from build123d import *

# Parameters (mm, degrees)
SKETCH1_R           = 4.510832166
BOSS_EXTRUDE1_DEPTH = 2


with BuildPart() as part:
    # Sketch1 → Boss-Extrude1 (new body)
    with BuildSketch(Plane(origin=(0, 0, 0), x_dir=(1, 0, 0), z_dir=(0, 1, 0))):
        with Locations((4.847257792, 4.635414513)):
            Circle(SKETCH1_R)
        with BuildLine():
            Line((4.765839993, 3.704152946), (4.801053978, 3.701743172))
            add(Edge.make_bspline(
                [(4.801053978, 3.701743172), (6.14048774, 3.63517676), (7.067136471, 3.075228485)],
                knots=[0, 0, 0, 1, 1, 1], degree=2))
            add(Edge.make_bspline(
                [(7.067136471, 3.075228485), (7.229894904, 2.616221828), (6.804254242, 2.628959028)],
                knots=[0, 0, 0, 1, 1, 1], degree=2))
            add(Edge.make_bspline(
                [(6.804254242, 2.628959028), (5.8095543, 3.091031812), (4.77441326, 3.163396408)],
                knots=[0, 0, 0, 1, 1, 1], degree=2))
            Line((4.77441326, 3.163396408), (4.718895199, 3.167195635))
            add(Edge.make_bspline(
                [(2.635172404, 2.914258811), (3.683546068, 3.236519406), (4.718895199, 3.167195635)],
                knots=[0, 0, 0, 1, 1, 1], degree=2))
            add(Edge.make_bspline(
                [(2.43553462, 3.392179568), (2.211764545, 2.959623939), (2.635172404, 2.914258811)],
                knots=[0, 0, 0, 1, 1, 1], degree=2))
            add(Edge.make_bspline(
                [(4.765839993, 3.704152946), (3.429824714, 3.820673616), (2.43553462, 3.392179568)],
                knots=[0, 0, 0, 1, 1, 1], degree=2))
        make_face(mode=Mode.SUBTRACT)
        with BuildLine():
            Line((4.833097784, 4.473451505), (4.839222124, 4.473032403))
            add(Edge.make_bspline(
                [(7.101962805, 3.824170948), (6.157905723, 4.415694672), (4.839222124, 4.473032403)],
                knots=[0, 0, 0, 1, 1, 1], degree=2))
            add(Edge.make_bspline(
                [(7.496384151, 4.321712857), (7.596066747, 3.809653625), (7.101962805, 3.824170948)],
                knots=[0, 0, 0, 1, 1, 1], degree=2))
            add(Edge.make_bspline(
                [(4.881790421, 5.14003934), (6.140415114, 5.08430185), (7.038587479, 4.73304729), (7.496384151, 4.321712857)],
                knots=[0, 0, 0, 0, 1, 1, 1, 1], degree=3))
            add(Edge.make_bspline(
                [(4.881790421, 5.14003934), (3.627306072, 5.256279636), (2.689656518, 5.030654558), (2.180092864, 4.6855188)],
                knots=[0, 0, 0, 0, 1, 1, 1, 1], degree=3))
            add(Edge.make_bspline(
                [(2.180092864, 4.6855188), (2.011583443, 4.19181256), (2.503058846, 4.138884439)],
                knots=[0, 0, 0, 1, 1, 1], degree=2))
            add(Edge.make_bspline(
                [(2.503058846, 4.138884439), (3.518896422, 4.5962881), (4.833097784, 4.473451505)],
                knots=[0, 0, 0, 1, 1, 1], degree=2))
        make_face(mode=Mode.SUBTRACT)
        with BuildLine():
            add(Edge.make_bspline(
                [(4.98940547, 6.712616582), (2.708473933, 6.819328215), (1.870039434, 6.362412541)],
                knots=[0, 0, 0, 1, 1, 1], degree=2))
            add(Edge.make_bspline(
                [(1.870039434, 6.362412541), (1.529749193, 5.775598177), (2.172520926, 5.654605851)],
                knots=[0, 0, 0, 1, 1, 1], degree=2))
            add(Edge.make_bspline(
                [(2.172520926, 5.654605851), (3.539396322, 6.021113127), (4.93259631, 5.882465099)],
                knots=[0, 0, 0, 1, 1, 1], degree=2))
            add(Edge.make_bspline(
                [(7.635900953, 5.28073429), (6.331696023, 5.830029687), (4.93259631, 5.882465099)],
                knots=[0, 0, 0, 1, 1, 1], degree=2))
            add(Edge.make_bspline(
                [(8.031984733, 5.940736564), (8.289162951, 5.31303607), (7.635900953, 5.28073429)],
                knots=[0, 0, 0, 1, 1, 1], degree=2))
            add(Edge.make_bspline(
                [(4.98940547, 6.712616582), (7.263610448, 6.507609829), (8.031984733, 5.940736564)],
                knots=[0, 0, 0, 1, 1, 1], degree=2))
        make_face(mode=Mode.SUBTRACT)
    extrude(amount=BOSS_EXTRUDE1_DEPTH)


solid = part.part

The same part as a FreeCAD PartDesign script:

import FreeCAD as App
import Part
import Sketcher

V = App.Vector
Q = App.Units.Quantity

doc = App.newDocument("Part")
body = doc.addObject("PartDesign::Body", "Body")

sketch1 = body.newObject("Sketcher::SketchObject", "Sketch")
sketch1.AttachmentSupport = (doc.getObject("XZ_Plane"), [""])
sketch1.MapMode = "FlatFace"
sketch1.addGeometry([
    Part.Circle(V(4.847258, -4.635415, 0), V(0, 0, 1), 4.510832),
    Part.BSplineCurve([V(4.76584, -3.704153, 0), V(3.429825, -3.820674, 0), V(2.435535, -3.39218, 0)], [3, 3], [0, 1], False, 2, [1, 1, 1], False),
    Part.LineSegment(V(4.76584, -3.704153, 0), V(4.801054, -3.701743, 0)),
    Part.BSplineCurve([V(4.801054, -3.701743, 0), V(6.140488, -3.635177, 0), V(7.067136, -3.075228, 0)], [3, 3], [0, 1], False, 2, [1, 1, 1], False),
    Part.BSplineCurve([V(7.067136, -3.075228, 0), V(7.229895, -2.616222, 0), V(6.804254, -2.628959, 0)], [3, 3], [0, 1], False, 2, [1, 1, 1], False),
    Part.BSplineCurve([V(6.804254, -2.628959, 0), V(5.809554, -3.091032, 0), V(4.774413, -3.163396, 0)], [3, 3], [0, 1], False, 2, [1, 1, 1], False),
    Part.LineSegment(V(4.774413, -3.163396, 0), V(4.718895, -3.167196, 0)),
    Part.BSplineCurve([V(2.635172, -2.914259, 0), V(3.683546, -3.236519, 0), V(4.718895, -3.167196, 0)], [3, 3], [0, 1], False, 2, [1, 1, 1], False),
    Part.BSplineCurve([V(2.435535, -3.39218, 0), V(2.211765, -2.959624, 0), V(2.635172, -2.914259, 0)], [3, 3], [0, 1], False, 2, [1, 1, 1], False),
    Part.LineSegment(V(4.839222, -4.473032, 0), V(4.833098, -4.473452, 0)),
    Part.BSplineCurve([V(2.503059, -4.138884, 0), V(3.518896, -4.596288, 0), V(4.833098, -4.473452, 0)], [3, 3], [0, 1], False, 2, [1, 1, 1], False),
    Part.BSplineCurve([V(2.180093, -4.685519, 0), V(2.011583, -4.191813, 0), V(2.503059, -4.138884, 0)], [3, 3], [0, 1], False, 2, [1, 1, 1], False),
    Part.BSplineCurve([V(4.88179, -5.140039, 0), V(3.627306, -5.25628, 0), V(2.689657, -5.030655, 0), V(2.180093, -4.685519, 0)], [4, 4], [0, 1], False, 3, [1, 1, 1, 1], False),
    Part.BSplineCurve([V(4.88179, -5.140039, 0), V(6.140415, -5.084302, 0), V(7.038587, -4.733047, 0), V(7.496384, -4.321713, 0)], [4, 4], [0, 1], False, 3, [1, 1, 1, 1], False),
    Part.BSplineCurve([V(7.496384, -4.321713, 0), V(7.596067, -3.809654, 0), V(7.101963, -3.824171, 0)], [3, 3], [0, 1], False, 2, [1, 1, 1], False),
    Part.BSplineCurve([V(7.101963, -3.824171, 0), V(6.157906, -4.415695, 0), V(4.839222, -4.473032, 0)], [3, 3], [0, 1], False, 2, [1, 1, 1], False),
    Part.BSplineCurve([V(4.989405, -6.712617, 0), V(2.708474, -6.819328, 0), V(1.870039, -6.362413, 0)], [3, 3], [0, 1], False, 2, [1, 1, 1], False),
    Part.BSplineCurve([V(4.989405, -6.712617, 0), V(7.26361, -6.50761, 0), V(8.031985, -5.940737, 0)], [3, 3], [0, 1], False, 2, [1, 1, 1], False),
    Part.BSplineCurve([V(8.031985, -5.940737, 0), V(8.289163, -5.313036, 0), V(7.635901, -5.280734, 0)], [3, 3], [0, 1], False, 2, [1, 1, 1], False),
    Part.BSplineCurve([V(7.635901, -5.280734, 0), V(6.331696, -5.83003, 0), V(4.932596, -5.882465, 0)], [3, 3], [0, 1], False, 2, [1, 1, 1], False),
    Part.BSplineCurve([V(2.172521, -5.654606, 0), V(3.539396, -6.021113, 0), V(4.932596, -5.882465, 0)], [3, 3], [0, 1], False, 2, [1, 1, 1], False),
    Part.BSplineCurve([V(1.870039, -6.362413, 0), V(1.529749, -5.775598, 0), V(2.172521, -5.654606, 0)], [3, 3], [0, 1], False, 2, [1, 1, 1], False),
], False)
sketch1.addConstraint([
    Sketcher.Constraint("Block", 1),
    Sketcher.Constraint("Block", 3),
    Sketcher.Constraint("Block", 4),
    Sketcher.Constraint("Block", 5),
    Sketcher.Constraint("Block", 7),
    Sketcher.Constraint("Block", 8),
    Sketcher.Constraint("Block", 10),
    Sketcher.Constraint("Block", 11),
    Sketcher.Constraint("Block", 12),
    Sketcher.Constraint("Block", 13),
    Sketcher.Constraint("Block", 14),
    Sketcher.Constraint("Block", 15),
    Sketcher.Constraint("Block", 16),
    Sketcher.Constraint("Block", 17),
    Sketcher.Constraint("Block", 18),
    Sketcher.Constraint("Block", 19),
    Sketcher.Constraint("Block", 20),
    Sketcher.Constraint("Block", 21),
    Sketcher.Constraint("Coincident", 1, 1, 2, 1),
    Sketcher.Constraint("Coincident", 2, 2, 3, 1),
    Sketcher.Constraint("Coincident", 5, 2, 6, 1),
    Sketcher.Constraint("Coincident", 6, 2, 7, 2),
    Sketcher.Constraint("Coincident", 9, 2, 10, 2),
    Sketcher.Constraint("Coincident", 15, 2, 9, 1),
    Sketcher.Constraint("Diameter", 0, Q("9.021664 mm")),
    Sketcher.Constraint("DistanceY", 0, 3, 2, 2, Q("0.933671 mm")),
    Sketcher.Constraint("DistanceX", 9, 2, 0, 3, Q("0.01416 mm")),
])
pad1 = body.newObject("PartDesign::Pad", "Pad")
pad1.Profile = sketch1
pad1.Length = 2
pad1.Reversed = True

doc.recompute()
